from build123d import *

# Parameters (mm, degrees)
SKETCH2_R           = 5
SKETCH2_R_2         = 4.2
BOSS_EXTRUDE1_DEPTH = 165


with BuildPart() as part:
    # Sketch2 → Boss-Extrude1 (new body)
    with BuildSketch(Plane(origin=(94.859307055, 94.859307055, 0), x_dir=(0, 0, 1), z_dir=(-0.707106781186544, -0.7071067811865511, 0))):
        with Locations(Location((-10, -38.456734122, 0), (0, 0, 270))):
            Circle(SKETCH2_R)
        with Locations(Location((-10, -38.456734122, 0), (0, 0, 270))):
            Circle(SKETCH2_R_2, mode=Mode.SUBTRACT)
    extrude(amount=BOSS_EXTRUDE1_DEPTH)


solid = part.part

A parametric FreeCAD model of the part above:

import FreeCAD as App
import Part
import Sketcher
from FreeCAD import Vector

doc = App.newDocument("Part")
body = doc.addObject("PartDesign::Body", "Body")

sketch1 = body.newObject("Sketcher::SketchObject", "Sketch")
sketch1.Placement = App.Placement(Vector(94.859307, 94.859307, 0), App.Rotation(Vector(0, 0, 1), Vector(-0.707106781, 0.707106781, 0), Vector(-0.707106781, -0.707106781, 0), "ZXY"))
sketch1.addGeometry([
    Part.Circle(Vector(-10, -38.5, 0), Vector(0, 0, 1), 5),
    Part.Circle(Vector(-10, -38.5, 0), Vector(0, 0, 1), 4.2),
], False)
sketch1.addConstraint([
    Sketcher.Constraint("Coincident", 1, 3, 0, 3),
    Sketcher.Constraint("Diameter", 0, 10.0),
    Sketcher.Constraint("Diameter", 1, 8.4),
    Sketcher.Constraint("DistanceX", 0, 3, -1, 1, 10.0),
    Sketcher.Constraint("DistanceY", 0, 3, -1, 1, 38.456734),
])
pad1 = body.newObject("PartDesign::Pad", "Pad")
pad1.Profile = sketch1
pad1.Length = 165

doc.recompute()
